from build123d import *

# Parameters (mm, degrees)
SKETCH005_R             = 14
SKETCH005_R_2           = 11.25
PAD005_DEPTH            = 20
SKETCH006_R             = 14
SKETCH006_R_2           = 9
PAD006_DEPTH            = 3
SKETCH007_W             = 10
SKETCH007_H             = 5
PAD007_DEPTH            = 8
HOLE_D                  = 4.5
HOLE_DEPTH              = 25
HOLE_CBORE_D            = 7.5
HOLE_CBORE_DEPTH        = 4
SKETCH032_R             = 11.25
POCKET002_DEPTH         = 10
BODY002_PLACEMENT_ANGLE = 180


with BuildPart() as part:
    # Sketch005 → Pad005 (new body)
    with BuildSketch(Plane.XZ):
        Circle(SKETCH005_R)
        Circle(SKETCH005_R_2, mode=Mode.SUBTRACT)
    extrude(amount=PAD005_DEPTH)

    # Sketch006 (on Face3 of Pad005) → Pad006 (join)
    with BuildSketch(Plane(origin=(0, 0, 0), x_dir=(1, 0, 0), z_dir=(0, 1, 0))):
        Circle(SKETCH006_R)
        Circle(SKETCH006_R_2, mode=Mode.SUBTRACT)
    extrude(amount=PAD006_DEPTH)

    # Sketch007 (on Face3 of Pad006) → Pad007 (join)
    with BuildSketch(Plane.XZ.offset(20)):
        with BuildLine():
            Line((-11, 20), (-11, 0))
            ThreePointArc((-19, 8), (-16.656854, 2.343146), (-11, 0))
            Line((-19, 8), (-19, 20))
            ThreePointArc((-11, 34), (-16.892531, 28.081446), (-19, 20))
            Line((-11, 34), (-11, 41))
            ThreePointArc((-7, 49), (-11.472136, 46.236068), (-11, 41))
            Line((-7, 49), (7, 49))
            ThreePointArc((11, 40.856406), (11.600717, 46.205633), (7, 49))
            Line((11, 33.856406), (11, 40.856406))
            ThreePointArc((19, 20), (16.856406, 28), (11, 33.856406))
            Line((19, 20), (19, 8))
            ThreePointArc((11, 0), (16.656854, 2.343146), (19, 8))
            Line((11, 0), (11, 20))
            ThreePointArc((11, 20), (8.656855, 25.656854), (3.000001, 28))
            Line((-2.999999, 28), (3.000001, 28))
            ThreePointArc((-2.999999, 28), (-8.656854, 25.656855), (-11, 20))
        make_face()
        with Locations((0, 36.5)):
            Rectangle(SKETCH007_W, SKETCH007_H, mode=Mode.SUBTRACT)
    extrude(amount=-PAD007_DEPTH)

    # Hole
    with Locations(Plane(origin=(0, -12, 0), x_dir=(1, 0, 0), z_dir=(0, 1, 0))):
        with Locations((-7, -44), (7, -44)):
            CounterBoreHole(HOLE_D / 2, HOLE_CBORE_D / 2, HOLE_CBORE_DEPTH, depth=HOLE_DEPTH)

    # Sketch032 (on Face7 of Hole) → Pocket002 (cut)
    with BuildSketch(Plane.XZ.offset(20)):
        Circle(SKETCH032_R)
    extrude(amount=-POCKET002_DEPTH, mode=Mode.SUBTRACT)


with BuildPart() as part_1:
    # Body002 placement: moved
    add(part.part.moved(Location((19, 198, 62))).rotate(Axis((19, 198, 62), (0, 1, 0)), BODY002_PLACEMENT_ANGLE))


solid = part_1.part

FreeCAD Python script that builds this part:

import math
import FreeCAD as App
import Part
import Sketcher
from FreeCAD import Vector

doc = App.newDocument("Part")
body = doc.addObject("PartDesign::Body", "Body")

sketch1 = body.newObject("Sketcher::SketchObject", "Sketch")
sketch1.AttachmentSupport = (doc.getObject("XZ_Plane"), [""])
sketch1.MapMode = "FlatFace"
sketch1.addGeometry([
    Part.Circle(Vector(0, 0, 0), Vector(0, 0, 1), 14),
    Part.Circle(Vector(0, 0, 0), Vector(0, 0, 1), 11),
], False)
sketch1.addConstraint([
    Sketcher.Constraint("Coincident", 0, 3, -1, 1),
    Sketcher.Constraint("Coincident", 1, 3, -1, 1),
    Sketcher.Constraint("Diameter", 0, 28.0),
    Sketcher.Constraint("Diameter", 1, 22.5),
])
pad1 = body.newObject("PartDesign::Pad", "Pad")
pad1.Profile = sketch1
pad1.Length = 20

sketch2 = body.newObject("Sketcher::SketchObject", "Sketch001")
sketch2.AttachmentSupport = (doc.getObject("XZ_Plane"), [""])
sketch2.MapMode = "FlatFace"
sketch2.addGeometry([
    Part.Circle(Vector(0, 0, 0), Vector(0, 0, 1), 14),
    Part.Circle(Vector(0, 0, 0), Vector(0, 0, 1), 9),
], False)
sketch2.addConstraint([
    Sketcher.Constraint("Coincident", 0, 3, -1, 1),
    Sketcher.Constraint("Coincident", 1, 3, -1, 1),
    Sketcher.Constraint("Diameter", 0, 28.0),
    Sketcher.Constraint("Diameter", 1, 18.0),
])
pad2 = body.newObject("PartDesign::Pad", "Pad001")
pad2.Profile = sketch2
pad2.Length = 3
pad2.Reversed = True

sketch3 = body.newObject("Sketcher::SketchObject", "Sketch002")
sketch3.AttachmentSupport = (doc.getObject("XZ_Plane"), [""])
sketch3.MapMode = "FlatFace"
sketch3.AttachmentOffset = App.Placement(Vector(0, 0, 20), App.Rotation())
sketch3.addGeometry([
    Part.LineSegment(Vector(-11, 0, 0), Vector(-11, 20, 0)),
    Part.ArcOfCircle(Part.Circle(Vector(-3, 20, 0), Vector(0, 0, 1), 8), math.radians(90), math.radians(180)),
    Part.LineSegment(Vector(-3, 28, 0), Vector(3, 28, 0)),
    Part.ArcOfCircle(Part.Circle(Vector(3, 20, 0), Vector(0, 0, 1), 8), math.radians(0), math.radians(90)),
    Part.LineSegment(Vector(11, 20, 0), Vector(11, 0, 0)),
    Part.ArcOfCircle(Part.Circle(Vector(11, 8, 0), Vector(0, 0, 1), 8), math.radians(-90), math.radians(0)),
    Part.LineSegment(Vector(19, 8, 0), Vector(19, 20, 0)),
    Part.ArcOfCircle(Part.Circle(Vector(3, 20, 0), Vector(0, 0, 1), 16), math.radians(0), math.radians(60)),
    Part.LineSegment(Vector(11, 33.9, 0), Vector(11, 40.9, 0)),
    Part.ArcOfCircle(Part.Circle(Vector(7.1, 44, 0), Vector(0, 0, 1), 5), math.radians(-39), math.radians(91)),
    Part.LineSegment(Vector(7, 49, 0), Vector(-7, 49, 0)),
    Part.ArcOfCircle(Part.Circle(Vector(-7, 44, 0), Vector(0, 0, 1), 5), math.radians(90), math.radians(217)),
    Part.LineSegment(Vector(-11, 41, 0), Vector(-11, 34, 0)),
    Part.ArcOfCircle(Part.Circle(Vector(-3, 20.1, 0), Vector(0, 0, 1), 16), math.radians(120), math.radians(181)),
    Part.LineSegment(Vector(-19, 20, 0), Vector(-19, 8, 0)),
    Part.ArcOfCircle(Part.Circle(Vector(-11, 8, 0), Vector(0, 0, 1), 8), math.radians(-180), math.radians(-90)),
    Part.LineSegment(Vector(-5, 34, 0), Vector(-5, 39, 0)),
    Part.LineSegment(Vector(-5, 39, 0), Vector(5, 39, 0)),
    Part.LineSegment(Vector(5, 39, 0), Vector(5, 34, 0)),
    Part.LineSegment(Vector(5, 34, 0), Vector(-5, 34, 0)),
], False)
sketch3.addConstraint([
    Sketcher.Constraint("Tangent", 0, 2, 1, 2),
    Sketcher.Constraint("Tangent", 1, 1, 2, 1),
    Sketcher.Constraint("Tangent", 2, 2, 3, 2),
    Sketcher.Constraint("Tangent", 3, 1, 4, 1),
    Sketcher.Constraint("Coincident", 4, 2, 5, 1),
    Sketcher.Constraint("Tangent", 5, 2, 6, 1),
    Sketcher.Constraint("Tangent", 6, 2, 7, 1),
    Sketcher.Constraint("Coincident", 7, 2, 8, 1),
    Sketcher.Constraint("Coincident", 8, 2, 9, 1),
    Sketcher.Constraint("Coincident", 9, 2, 10, 1),
    Sketcher.Constraint("Tangent", 10, 2, 11, 1),
    Sketcher.Constraint("Coincident", 11, 2, 12, 1),
    Sketcher.Constraint("Coincident", 12, 2, 13, 1),
    Sketcher.Constraint("Coincident", 13, 2, 14, 1),
    Sketcher.Constraint("Tangent", 14, 2, 15, 1),
    Sketcher.Constraint("Coincident", 15, 2, 0, 1),
    Sketcher.Constraint("Coincident", 16, 2, 17, 1),
    Sketcher.Constraint("Coincident", 17, 2, 18, 1),
    Sketcher.Constraint("Coincident", 18, 2, 19, 1),
    Sketcher.Constraint("Coincident", 19, 2, 16, 1),
    Sketcher.Constraint("Vertical", 0),
    Sketcher.Constraint("Horizontal", 2),
    Sketcher.Constraint("Vertical", 4),
    Sketcher.Constraint("Vertical", 6),
    Sketcher.Constraint("Vertical", 8),
    Sketcher.Constraint("Horizontal", 10),
    Sketcher.Constraint("Vertical", 12),
    Sketcher.Constraint("Vertical", 14),
    Sketcher.Constraint("Vertical", 16),
    Sketcher.Constraint("Horizontal", 17),
    Sketcher.Constraint("Vertical", 18),
    Sketcher.Constraint("Horizontal", 19),
    Sketcher.Constraint("Coincident", 7, 3, 3, 3),
    Sketcher.Constraint("Equal", 1, 3),
    Sketcher.Constraint("Equal", 3, 5),
    Sketcher.Constraint("Equal", 9, 11),
    Sketcher.Constraint("Equal", 5, 15),
    Sketcher.Constraint("Symmetric", 4, 2, 15, 2, -1, 1),
    Sketcher.Constraint("Symmetric", 5, 3, 15, 3, -2),
    Sketcher.Constraint("Horizontal", 6, 2, 13, 2),
    Sketcher.Constraint("Horizontal", 12, 2, 18, 2),
    Sketcher.Constraint("Vertical", 15, 3, 0, 2),
    Sketcher.Constraint("Vertical", 4, 2, 7, 2),
    Sketcher.Constraint("Vertical", 0, 2, 11, 2),
    Sketcher.Constraint("Equal", 8, 12),
    Sketcher.Constraint("Radius", 1, 7.999999),
    Sketcher.Constraint("Radius", 9, 5.0),
    Sketcher.Constraint("DistanceX", 2, 1, 2, 2, 6.0),
    Sketcher.Constraint("DistanceX", 10, 2, 10, 1, 14.0),
    Sketcher.Constraint("DistanceX", 17, 1, 17, 2, 10.0),
    Sketcher.Constraint("DistanceY", 0, 1, 0, 2, 20.0),
    Sketcher.Constraint("DistanceY", 8, 1, 8, 2, 7.0),
    Sketcher.Constraint("DistanceY", 16, 1, 16, 2, 5.0),
    Sketcher.Constraint("DistanceX", 11, 3, -1, 1, 7.0),
    Sketcher.Constraint("DistanceY", -1, 1, 11, 3, 44.0),
    Sketcher.Constraint("DistanceX", 16, 2, -1, 1, 5.0),
    Sketcher.Constraint("Radius", 13, 16.000003),
])
pad3 = body.newObject("PartDesign::Pad", "Pad002")
pad3.Profile = sketch3
pad3.Length = 8
pad3.Reversed = True

sketch4 = body.newObject("Sketcher::SketchObject", "Sketch003")
sketch4.AttachmentSupport = (doc.getObject("XZ_Plane"), [""])
sketch4.MapMode = "FlatFace"
sketch4.AttachmentOffset = App.Placement(Vector(0, 0, 12), App.Rotation())
sketch4.addGeometry([
    Part.Circle(Vector(-7, 44, 0), Vector(0, 0, 1), 2.2),
    Part.Circle(Vector(7, 44, 0), Vector(0, 0, 1), 2.2),
], False)
sketch4.addConstraint([
    Sketcher.Constraint("Equal", 0, 1),
    Sketcher.Constraint("Symmetric", 0, 3, 1, 3, -2),
    Sketcher.Constraint("Diameter", 0, 4.5),
    Sketcher.Constraint("DistanceX", 0, 3, -1, 1, 7.0),
    Sketcher.Constraint("DistanceY", -1, 1, 0, 3, 44.0),
])
doc.recompute()
hole = body.newObject("PartDesign::Hole", "Hole")
hole.Profile = sketch4
hole.ThreadType = "None"
hole.Diameter = 4.5
hole.DepthType = "Dimension"
hole.Depth = 25
hole.DrillPoint = "Flat"
hole.HoleCutType = "Counterbore"
hole.HoleCutDiameter = 7.5
hole.HoleCutDepth = 4
hole.Reversed = True

sketch5 = body.newObject("Sketcher::SketchObject", "Sketch004")
sketch5.AttachmentSupport = (doc.getObject("XZ_Plane"), [""])
sketch5.MapMode = "FlatFace"
sketch5.AttachmentOffset = App.Placement(Vector(0, 0, 20), App.Rotation())
sketch5.addGeometry(Part.Circle(Vector(0, 0, 0), Vector(0, 0, 1), 11), False)
sketch5.addConstraint([
    Sketcher.Constraint("Coincident", 0, 3, -1, 1),
    Sketcher.Constraint("Diameter", 0, 22.5),
])
pocket1 = body.newObject("PartDesign::Pocket", "Pocket")
pocket1.Profile = sketch5
pocket1.Length = 10
body2 = doc.addObject("PartDesign::Body", "Body001")
doc.recompute()

body.Placement = App.Placement(Vector(19, 198, 62), App.Rotation(Vector(0, 1, 0), 180))
boolean = body2.newObject("PartDesign::Boolean", "Boolean")
boolean.Type = "Fuse"
boolean.addObjects([body])

doc.recompute()
